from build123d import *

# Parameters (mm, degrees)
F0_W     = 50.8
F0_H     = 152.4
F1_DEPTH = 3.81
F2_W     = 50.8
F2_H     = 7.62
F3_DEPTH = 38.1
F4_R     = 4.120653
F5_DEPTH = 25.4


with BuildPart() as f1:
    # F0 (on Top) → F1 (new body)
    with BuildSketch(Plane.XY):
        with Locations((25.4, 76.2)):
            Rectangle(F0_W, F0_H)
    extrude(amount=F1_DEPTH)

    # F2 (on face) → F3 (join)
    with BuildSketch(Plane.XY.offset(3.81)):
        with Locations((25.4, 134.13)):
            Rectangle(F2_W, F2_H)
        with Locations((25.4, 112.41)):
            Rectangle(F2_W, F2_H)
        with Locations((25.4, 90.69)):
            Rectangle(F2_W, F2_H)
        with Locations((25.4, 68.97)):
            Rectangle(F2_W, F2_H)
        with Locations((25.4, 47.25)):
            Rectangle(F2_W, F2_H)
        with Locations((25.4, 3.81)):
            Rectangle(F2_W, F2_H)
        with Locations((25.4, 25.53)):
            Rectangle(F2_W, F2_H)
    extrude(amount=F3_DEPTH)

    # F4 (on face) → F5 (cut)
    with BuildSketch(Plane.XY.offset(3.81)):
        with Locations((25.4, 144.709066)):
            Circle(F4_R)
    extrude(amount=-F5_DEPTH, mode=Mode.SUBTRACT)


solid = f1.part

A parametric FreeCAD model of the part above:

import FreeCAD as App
import Part
import Sketcher

V = App.Vector
Q = App.Units.Quantity


def add_polygon(sketch, points):
    """Adds a closed chain of lines whose ends are joined by coincident constraints."""
    first, n = sketch.GeometryCount, len(points)
    for a, b in zip(points, points[1:] + points[:1]):
        sketch.addGeometry(Part.LineSegment(App.Vector(*a, 0), App.Vector(*b, 0)), False)
    for i in range(n):
        sketch.addConstraint(Sketcher.Constraint("Coincident", first + i, 2, first + (i + 1) % n, 1))

doc = App.newDocument("Part")
body = doc.addObject("PartDesign::Body", "Body")

# Sketch on XY plane
sketch1 = body.newObject("Sketcher::SketchObject", "Sketch")
sketch1.AttachmentSupport = (doc.getObject("XY_Plane"), [""])
sketch1.MapMode = "FlatFace"
add_polygon(sketch1, [(0, 152.4), (0, 0), (50.8, 0), (50.8, 152.4)])  # lines 0-3
sketch1.addConstraint(Sketcher.Constraint("Vertical", 0))
sketch1.addConstraint(Sketcher.Constraint("Horizontal", 1))
sketch1.addConstraint(Sketcher.Constraint("Vertical", 2))
sketch1.addConstraint(Sketcher.Constraint("Horizontal", 3))
sketch1.addConstraint(Sketcher.Constraint("Coincident", 0, 2, -1, 1))
sketch1.addConstraint(Sketcher.Constraint("DistanceX", 1, 1, 1, 2, Q("2 in")))
sketch1.addConstraint(Sketcher.Constraint("DistanceY", 0, 2, 0, 1, Q("6 in")))
pad1 = body.newObject("PartDesign::Pad", "Pad")
pad1.Profile = sketch1
pad1.Length = Q("0.15 in")

# Sketch on XY plane
sketch2 = body.newObject("Sketcher::SketchObject", "Sketch001")
sketch2.AttachmentSupport = (doc.getObject("XY_Plane"), [""])
sketch2.MapMode = "FlatFace"
sketch2.AttachmentOffset = App.Placement(V(0, 0, 0.15 * 25.4), App.Rotation())
add_polygon(sketch2, [(0, 137.94), (0, 130.32), (50.8, 130.32), (50.8, 137.94)])  # lines 0-3
add_polygon(sketch2, [(0, 116.22), (0, 108.6), (50.8, 108.6), (50.8, 116.22)])  # lines 4-7
add_polygon(sketch2, [(0, 94.5), (0, 86.88), (50.8, 86.88), (50.8, 94.5)])  # lines 8-11
add_polygon(sketch2, [(0, 72.78), (0, 65.16), (50.8, 65.16), (50.8, 72.78)])  # lines 12-15
add_polygon(sketch2, [(0, 51.06), (0, 43.44), (50.8, 43.44), (50.8, 51.06)])  # lines 16-19
add_polygon(sketch2, [(0, 7.62), (0, 0), (50.8, 0), (50.8, 7.62)])  # lines 20-23
add_polygon(sketch2, [(0, 29.34), (0, 21.72), (50.8, 21.72), (50.8, 29.34)])  # lines 24-27
sketch2.addConstraint(Sketcher.Constraint("Vertical", 0))
sketch2.addConstraint(Sketcher.Constraint("Horizontal", 1))
sketch2.addConstraint(Sketcher.Constraint("Vertical", 2))
sketch2.addConstraint(Sketcher.Constraint("Horizontal", 3))
sketch2.addConstraint(Sketcher.Constraint("Vertical", 4))
sketch2.addConstraint(Sketcher.Constraint("Horizontal", 5))
sketch2.addConstraint(Sketcher.Constraint("Vertical", 6))
sketch2.addConstraint(Sketcher.Constraint("Horizontal", 7))
sketch2.addConstraint(Sketcher.Constraint("Vertical", 8))
sketch2.addConstraint(Sketcher.Constraint("Horizontal", 9))
sketch2.addConstraint(Sketcher.Constraint("Vertical", 10))
sketch2.addConstraint(Sketcher.Constraint("Horizontal", 11))
sketch2.addConstraint(Sketcher.Constraint("Vertical", 12))
sketch2.addConstraint(Sketcher.Constraint("Horizontal", 13))
sketch2.addConstraint(Sketcher.Constraint("Vertical", 14))
sketch2.addConstraint(Sketcher.Constraint("Horizontal", 15))
sketch2.addConstraint(Sketcher.Constraint("Vertical", 16))
sketch2.addConstraint(Sketcher.Constraint("Horizontal", 17))
sketch2.addConstraint(Sketcher.Constraint("Vertical", 18))
sketch2.addConstraint(Sketcher.Constraint("Horizontal", 19))
sketch2.addConstraint(Sketcher.Constraint("Vertical", 20))
sketch2.addConstraint(Sketcher.Constraint("Horizontal", 21))
sketch2.addConstraint(Sketcher.Constraint("Vertical", 22))
sketch2.addConstraint(Sketcher.Constraint("Horizontal", 23))
sketch2.addConstraint(Sketcher.Constraint("Vertical", 24))
sketch2.addConstraint(Sketcher.Constraint("Horizontal", 25))
sketch2.addConstraint(Sketcher.Constraint("Vertical", 26))
sketch2.addConstraint(Sketcher.Constraint("Horizontal", 27))
sketch2.addConstraint(Sketcher.Constraint("Coincident", 20, 2, -1, 1))
sketch2.addConstraint(Sketcher.Constraint("PointOnObject", 0, 2, -2))
sketch2.addConstraint(Sketcher.Constraint("PointOnObject", 4, 2, -2))
sketch2.addConstraint(Sketcher.Constraint("PointOnObject", 8, 2, -2))
sketch2.addConstraint(Sketcher.Constraint("PointOnObject", 12, 2, -2))
sketch2.addConstraint(Sketcher.Constraint("PointOnObject", 16, 2, -2))
sketch2.addConstraint(Sketcher.Constraint("PointOnObject", 24, 2, -2))
sketch2.addConstraint(Sketcher.Constraint("Vertical", 2, 2, 5, 2))
sketch2.addConstraint(Sketcher.Constraint("Vertical", 6, 2, 9, 2))
sketch2.addConstraint(Sketcher.Constraint("Vertical", 10, 2, 13, 2))
sketch2.addConstraint(Sketcher.Constraint("Vertical", 14, 2, 17, 2))
sketch2.addConstraint(Sketcher.Constraint("Vertical", 18, 2, 21, 2))
sketch2.addConstraint(Sketcher.Constraint("Vertical", 22, 2, 25, 2))
sketch2.addConstraint(Sketcher.Constraint("Equal", 2, 4))
sketch2.addConstraint(Sketcher.Constraint("Equal", 6, 8))
sketch2.addConstraint(Sketcher.Constraint("Equal", 10, 12))
sketch2.addConstraint(Sketcher.Constraint("Equal", 14, 16))
sketch2.addConstraint(Sketcher.Constraint("Equal", 18, 20))
sketch2.addConstraint(Sketcher.Constraint("Equal", 22, 24))
sketch2.addConstraint(Sketcher.Constraint("DistanceX", 1, 1, 1, 2, Q("2 in")))
sketch2.addConstraint(Sketcher.Constraint("DistanceY", 0, 2, 0, 1, Q("0.3 in")))
sketch2.addConstraint(Sketcher.Constraint("DistanceY", -1, 1, 0, 2, Q("130.32 mm")))
sketch2.addConstraint(Sketcher.Constraint("DistanceY", -1, 1, 4, 2, Q("108.6 mm")))
sketch2.addConstraint(Sketcher.Constraint("DistanceY", -1, 1, 8, 2, Q("86.88 mm")))
sketch2.addConstraint(Sketcher.Constraint("DistanceY", -1, 1, 12, 2, Q("65.16 mm")))
sketch2.addConstraint(Sketcher.Constraint("DistanceY", -1, 1, 16, 2, Q("43.44 mm")))
sketch2.addConstraint(Sketcher.Constraint("DistanceY", -1, 1, 24, 2, Q("21.72 mm")))
pad2 = body.newObject("PartDesign::Pad", "Pad001")
pad2.Profile = sketch2
pad2.Length = Q("1.5 in")

# Sketch on XY plane
sketch3 = body.newObject("Sketcher::SketchObject", "Sketch002")
sketch3.AttachmentSupport = (doc.getObject("XY_Plane"), [""])
sketch3.MapMode = "FlatFace"
sketch3.AttachmentOffset = App.Placement(V(0, 0, 0.15 * 25.4), App.Rotation())
sketch3.addGeometry(Part.Circle(V(25.4, 144.709066, 0), V(0, 0, 1), 4.120653), False)
sketch3.addConstraint(Sketcher.Constraint("DistanceX", -1, 1, 0, 3, Q("1 in")))
sketch3.addConstraint(Sketcher.Constraint("Diameter", 0, Q("8.241306 mm")))
sketch3.addConstraint(Sketcher.Constraint("DistanceY", -1, 1, 0, 3, Q("144.709066 mm")))
pocket1 = body.newObject("PartDesign::Pocket", "Pocket")
pocket1.Profile = sketch3
pocket1.Length = Q("1 in")

doc.recompute()
